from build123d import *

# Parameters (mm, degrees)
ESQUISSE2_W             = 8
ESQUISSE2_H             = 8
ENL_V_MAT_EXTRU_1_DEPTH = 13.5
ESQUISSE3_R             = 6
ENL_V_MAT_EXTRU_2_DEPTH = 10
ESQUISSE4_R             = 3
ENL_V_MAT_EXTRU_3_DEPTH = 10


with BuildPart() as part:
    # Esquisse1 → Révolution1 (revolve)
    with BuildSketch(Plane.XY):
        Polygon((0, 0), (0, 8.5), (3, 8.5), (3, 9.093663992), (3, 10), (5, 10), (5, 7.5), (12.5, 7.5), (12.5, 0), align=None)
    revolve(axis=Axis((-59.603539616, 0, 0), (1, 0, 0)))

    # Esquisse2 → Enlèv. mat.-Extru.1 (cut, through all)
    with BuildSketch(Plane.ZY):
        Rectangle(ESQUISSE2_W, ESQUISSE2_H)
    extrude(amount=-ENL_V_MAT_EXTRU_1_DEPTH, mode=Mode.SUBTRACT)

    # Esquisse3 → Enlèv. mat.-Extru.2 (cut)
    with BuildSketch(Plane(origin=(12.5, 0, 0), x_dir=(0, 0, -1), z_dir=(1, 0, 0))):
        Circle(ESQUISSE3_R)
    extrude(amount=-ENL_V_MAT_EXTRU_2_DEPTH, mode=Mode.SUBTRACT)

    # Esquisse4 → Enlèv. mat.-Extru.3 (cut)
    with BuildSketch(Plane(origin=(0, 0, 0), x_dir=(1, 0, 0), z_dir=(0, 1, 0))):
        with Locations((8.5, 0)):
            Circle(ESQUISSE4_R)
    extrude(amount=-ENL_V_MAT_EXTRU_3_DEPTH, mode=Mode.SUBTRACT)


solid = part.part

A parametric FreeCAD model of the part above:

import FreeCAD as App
import Part
import Sketcher
from FreeCAD import Vector
Q = App.Units.Quantity


def add_polygon(sketch, points):
    """Adds a closed chain of lines whose ends are joined by coincident constraints."""
    first, n = sketch.GeometryCount, len(points)
    for a, b in zip(points, points[1:] + points[:1]):
        sketch.addGeometry(Part.LineSegment(App.Vector(*a, 0), App.Vector(*b, 0)), False)
    for i in range(n):
        sketch.addConstraint(Sketcher.Constraint("Coincident", first + i, 2, first + (i + 1) % n, 1))

doc = App.newDocument("Part")
body = doc.addObject("PartDesign::Body", "Body")

sketch1 = body.newObject("Sketcher::SketchObject", "Sketch")
sketch1.AttachmentSupport = (doc.getObject("XY_Plane"), [""])
sketch1.MapMode = "FlatFace"
add_polygon(sketch1, [(0, 8.5), (0, 0), (12.5, 0), (12.5, 7.5), (5, 7.5), (5, 10), (3, 10), (3, 8.5)])
sketch1.addConstraint([
    Sketcher.Constraint("Vertical", 0),
    Sketcher.Constraint("Horizontal", 1),
    Sketcher.Constraint("Vertical", 2),
    Sketcher.Constraint("Horizontal", 3),
    Sketcher.Constraint("Vertical", 4),
    Sketcher.Constraint("Horizontal", 5),
    Sketcher.Constraint("Vertical", 6),
    Sketcher.Constraint("Horizontal", 7),
    Sketcher.Constraint("Coincident", 0, 2, -1, 1),
    Sketcher.Constraint("Equal", 3, 2),
    Sketcher.Constraint("DistanceX", 5, 2, 5, 1, Q("2 mm")),
    Sketcher.Constraint("DistanceX", 7, 2, 7, 1, Q("3 mm")),
    Sketcher.Constraint("DistanceX", 1, 1, 1, 2, Q("12.5 mm")),
    Sketcher.Constraint("DistanceY", 0, 2, 0, 1, Q("8.5 mm")),
    Sketcher.Constraint("DistanceY", 4, 1, 4, 2, Q("2.5 mm")),
])
revolution = body.newObject("PartDesign::Revolution", "Revolution")
revolution.Profile = sketch1
revolution.ReferenceAxis = (sketch1, ["H_Axis"])
revolution.Angle = 360

sketch2 = body.newObject("Sketcher::SketchObject", "Sketch001")
sketch2.AttachmentSupport = (doc.getObject("YZ_Plane"), [""])
sketch2.MapMode = "FlatFace"
add_polygon(sketch2, [(4, -4), (-4, -4), (-4, 4), (4, 4)])
sketch2.addConstraint([
    Sketcher.Constraint("Horizontal", 0),
    Sketcher.Constraint("Vertical", 1),
    Sketcher.Constraint("Horizontal", 2),
    Sketcher.Constraint("Vertical", 3),
    Sketcher.Constraint("Symmetric", 0, 2, 2, 2, -1, 1),
    Sketcher.Constraint("Equal", 2, 1),
    Sketcher.Constraint("DistanceX", 0, 2, 0, 1, Q("8 mm")),
])
pocket1 = body.newObject("PartDesign::Pocket", "Pocket")
pocket1.Profile = sketch2
pocket1.Type = "ThroughAll"
pocket1.Reversed = True

sketch3 = body.newObject("Sketcher::SketchObject", "Sketch002")
sketch3.AttachmentSupport = (doc.getObject("YZ_Plane"), [""])
sketch3.MapMode = "FlatFace"
sketch3.AttachmentOffset = App.Placement(Vector(0, 0, 12.5), App.Rotation())
sketch3.addGeometry(Part.Circle(Vector(0, 0, 0), Vector(0, 0, 1), 6), False)
sketch3.addConstraint([
    Sketcher.Constraint("Coincident", 0, 3, -1, 1),
    Sketcher.Constraint("Diameter", 0, Q("12 mm")),
])
pocket2 = body.newObject("PartDesign::Pocket", "Pocket001")
pocket2.Profile = sketch3
pocket2.Length = 10

sketch4 = body.newObject("Sketcher::SketchObject", "Sketch003")
sketch4.AttachmentSupport = (doc.getObject("XZ_Plane"), [""])
sketch4.MapMode = "FlatFace"
sketch4.addGeometry(Part.Circle(Vector(8.5, 0, 0), Vector(0, 0, 1), 3), False)
sketch4.addConstraint([
    Sketcher.Constraint("PointOnObject", 0, 3, -1),
    Sketcher.Constraint("Diameter", 0, Q("6 mm")),
    Sketcher.Constraint("DistanceX", -1, 1, 0, 3, Q("8.5 mm")),
])
pocket3 = body.newObject("PartDesign::Pocket", "Pocket002")
pocket3.Profile = sketch4
pocket3.Length = 10
pocket3.Reversed = True

doc.recompute()
